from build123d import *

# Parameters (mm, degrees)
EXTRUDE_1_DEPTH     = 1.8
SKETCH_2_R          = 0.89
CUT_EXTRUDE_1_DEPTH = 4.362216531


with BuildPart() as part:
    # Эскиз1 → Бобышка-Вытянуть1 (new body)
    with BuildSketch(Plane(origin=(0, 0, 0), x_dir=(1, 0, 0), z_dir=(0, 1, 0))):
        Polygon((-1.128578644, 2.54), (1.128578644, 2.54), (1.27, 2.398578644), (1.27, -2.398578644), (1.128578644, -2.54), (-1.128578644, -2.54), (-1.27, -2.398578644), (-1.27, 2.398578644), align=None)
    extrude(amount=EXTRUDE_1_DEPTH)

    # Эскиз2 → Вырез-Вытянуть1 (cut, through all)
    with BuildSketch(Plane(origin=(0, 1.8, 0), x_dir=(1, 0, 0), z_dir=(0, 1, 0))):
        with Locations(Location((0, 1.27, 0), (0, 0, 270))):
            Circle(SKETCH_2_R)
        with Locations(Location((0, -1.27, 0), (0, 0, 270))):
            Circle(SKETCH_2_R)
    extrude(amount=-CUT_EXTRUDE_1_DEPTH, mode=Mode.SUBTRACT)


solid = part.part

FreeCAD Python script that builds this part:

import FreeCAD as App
import Part
import Sketcher
from FreeCAD import Vector
Q = App.Units.Quantity

doc = App.newDocument("Part")
body = doc.addObject("PartDesign::Body", "Body")

sketch1 = body.newObject("Sketcher::SketchObject", "Sketch")
sketch1.AttachmentSupport = (doc.getObject("XZ_Plane"), [""])
sketch1.MapMode = "FlatFace"
sketch1.addGeometry([
    Part.LineSegment(Vector(1.128579, -2.54, 0), Vector(-1.128579, -2.54, 0)),
    Part.LineSegment(Vector(-1.128579, -2.54, 0), Vector(-1.27, -2.398579, 0)),
    Part.LineSegment(Vector(-1.27, -2.398579, 0), Vector(-1.27, 2.398579, 0)),
    Part.LineSegment(Vector(-1.27, 2.398579, 0), Vector(-1.128579, 2.54, 0)),
    Part.LineSegment(Vector(-1.128579, 2.54, 0), Vector(1.128579, 2.54, 0)),
    Part.LineSegment(Vector(1.128579, 2.54, 0), Vector(1.27, 2.398579, 0)),
    Part.LineSegment(Vector(1.27, 2.398579, 0), Vector(1.27, -2.398579, 0)),
    Part.LineSegment(Vector(1.27, -2.398579, 0), Vector(1.128579, -2.54, 0)),
], False)
sketch1.addConstraint([
    Sketcher.Constraint("Coincident", 0, 2, 1, 1),
    Sketcher.Constraint("Coincident", 1, 2, 2, 1),
    Sketcher.Constraint("Coincident", 2, 2, 3, 1),
    Sketcher.Constraint("Coincident", 3, 2, 4, 1),
    Sketcher.Constraint("Coincident", 4, 2, 5, 1),
    Sketcher.Constraint("Coincident", 5, 2, 6, 1),
    Sketcher.Constraint("Coincident", 6, 2, 7, 1),
    Sketcher.Constraint("Coincident", 7, 2, 0, 1),
    Sketcher.Constraint("Horizontal", 0),
    Sketcher.Constraint("Vertical", 2),
    Sketcher.Constraint("Horizontal", 4),
    Sketcher.Constraint("Vertical", 6),
    Sketcher.Constraint("Symmetric", 0, 2, 4, 2, -1, 1),
    Sketcher.Constraint("Symmetric", 1, 2, 5, 2, -1, 1),
    Sketcher.Constraint("Perpendicular", 1, 3),
    Sketcher.Constraint("Perpendicular", 5, 7),
    Sketcher.Constraint("Horizontal", 2, 2, 5, 2),
    Sketcher.Constraint("Horizontal", 1, 2, 6, 2),
    Sketcher.Constraint("Vertical", 0, 2, 3, 2),
    Sketcher.Constraint("Distance", 1, Q("0.2 mm")),
    Sketcher.Constraint("DistanceY", 0, 2, -1, 1, Q("2.54 mm")),
    Sketcher.Constraint("DistanceX", 1, 2, -1, 1, Q("1.27 mm")),
])
pad1 = body.newObject("PartDesign::Pad", "Pad")
pad1.Profile = sketch1
pad1.Length = 1.8
pad1.Reversed = True

sketch2 = body.newObject("Sketcher::SketchObject", "Sketch001")
sketch2.AttachmentSupport = (doc.getObject("XZ_Plane"), [""])
sketch2.MapMode = "FlatFace"
sketch2.AttachmentOffset = App.Placement(Vector(0, 0, -1.8), App.Rotation())
sketch2.addGeometry([
    Part.Circle(Vector(0, -1.27, 0), Vector(0, 0, 1), 0.89),
    Part.Circle(Vector(0, 1.27, 0), Vector(0, 0, 1), 0.89),
], False)
sketch2.addConstraint([
    Sketcher.Constraint("Equal", 0, 1),
    Sketcher.Constraint("Symmetric", 0, 3, 1, 3, -1, 1),
    Sketcher.Constraint("PointOnObject", 0, 3, -2),
    Sketcher.Constraint("Diameter", 0, Q("1.78 mm")),
    Sketcher.Constraint("DistanceY", 0, 3, -1, 1, Q("1.27 mm")),
])
pocket1 = body.newObject("PartDesign::Pocket", "Pocket")
pocket1.Profile = sketch2
pocket1.Type = "ThroughAll"
pocket1.Reversed = True

doc.recompute()
